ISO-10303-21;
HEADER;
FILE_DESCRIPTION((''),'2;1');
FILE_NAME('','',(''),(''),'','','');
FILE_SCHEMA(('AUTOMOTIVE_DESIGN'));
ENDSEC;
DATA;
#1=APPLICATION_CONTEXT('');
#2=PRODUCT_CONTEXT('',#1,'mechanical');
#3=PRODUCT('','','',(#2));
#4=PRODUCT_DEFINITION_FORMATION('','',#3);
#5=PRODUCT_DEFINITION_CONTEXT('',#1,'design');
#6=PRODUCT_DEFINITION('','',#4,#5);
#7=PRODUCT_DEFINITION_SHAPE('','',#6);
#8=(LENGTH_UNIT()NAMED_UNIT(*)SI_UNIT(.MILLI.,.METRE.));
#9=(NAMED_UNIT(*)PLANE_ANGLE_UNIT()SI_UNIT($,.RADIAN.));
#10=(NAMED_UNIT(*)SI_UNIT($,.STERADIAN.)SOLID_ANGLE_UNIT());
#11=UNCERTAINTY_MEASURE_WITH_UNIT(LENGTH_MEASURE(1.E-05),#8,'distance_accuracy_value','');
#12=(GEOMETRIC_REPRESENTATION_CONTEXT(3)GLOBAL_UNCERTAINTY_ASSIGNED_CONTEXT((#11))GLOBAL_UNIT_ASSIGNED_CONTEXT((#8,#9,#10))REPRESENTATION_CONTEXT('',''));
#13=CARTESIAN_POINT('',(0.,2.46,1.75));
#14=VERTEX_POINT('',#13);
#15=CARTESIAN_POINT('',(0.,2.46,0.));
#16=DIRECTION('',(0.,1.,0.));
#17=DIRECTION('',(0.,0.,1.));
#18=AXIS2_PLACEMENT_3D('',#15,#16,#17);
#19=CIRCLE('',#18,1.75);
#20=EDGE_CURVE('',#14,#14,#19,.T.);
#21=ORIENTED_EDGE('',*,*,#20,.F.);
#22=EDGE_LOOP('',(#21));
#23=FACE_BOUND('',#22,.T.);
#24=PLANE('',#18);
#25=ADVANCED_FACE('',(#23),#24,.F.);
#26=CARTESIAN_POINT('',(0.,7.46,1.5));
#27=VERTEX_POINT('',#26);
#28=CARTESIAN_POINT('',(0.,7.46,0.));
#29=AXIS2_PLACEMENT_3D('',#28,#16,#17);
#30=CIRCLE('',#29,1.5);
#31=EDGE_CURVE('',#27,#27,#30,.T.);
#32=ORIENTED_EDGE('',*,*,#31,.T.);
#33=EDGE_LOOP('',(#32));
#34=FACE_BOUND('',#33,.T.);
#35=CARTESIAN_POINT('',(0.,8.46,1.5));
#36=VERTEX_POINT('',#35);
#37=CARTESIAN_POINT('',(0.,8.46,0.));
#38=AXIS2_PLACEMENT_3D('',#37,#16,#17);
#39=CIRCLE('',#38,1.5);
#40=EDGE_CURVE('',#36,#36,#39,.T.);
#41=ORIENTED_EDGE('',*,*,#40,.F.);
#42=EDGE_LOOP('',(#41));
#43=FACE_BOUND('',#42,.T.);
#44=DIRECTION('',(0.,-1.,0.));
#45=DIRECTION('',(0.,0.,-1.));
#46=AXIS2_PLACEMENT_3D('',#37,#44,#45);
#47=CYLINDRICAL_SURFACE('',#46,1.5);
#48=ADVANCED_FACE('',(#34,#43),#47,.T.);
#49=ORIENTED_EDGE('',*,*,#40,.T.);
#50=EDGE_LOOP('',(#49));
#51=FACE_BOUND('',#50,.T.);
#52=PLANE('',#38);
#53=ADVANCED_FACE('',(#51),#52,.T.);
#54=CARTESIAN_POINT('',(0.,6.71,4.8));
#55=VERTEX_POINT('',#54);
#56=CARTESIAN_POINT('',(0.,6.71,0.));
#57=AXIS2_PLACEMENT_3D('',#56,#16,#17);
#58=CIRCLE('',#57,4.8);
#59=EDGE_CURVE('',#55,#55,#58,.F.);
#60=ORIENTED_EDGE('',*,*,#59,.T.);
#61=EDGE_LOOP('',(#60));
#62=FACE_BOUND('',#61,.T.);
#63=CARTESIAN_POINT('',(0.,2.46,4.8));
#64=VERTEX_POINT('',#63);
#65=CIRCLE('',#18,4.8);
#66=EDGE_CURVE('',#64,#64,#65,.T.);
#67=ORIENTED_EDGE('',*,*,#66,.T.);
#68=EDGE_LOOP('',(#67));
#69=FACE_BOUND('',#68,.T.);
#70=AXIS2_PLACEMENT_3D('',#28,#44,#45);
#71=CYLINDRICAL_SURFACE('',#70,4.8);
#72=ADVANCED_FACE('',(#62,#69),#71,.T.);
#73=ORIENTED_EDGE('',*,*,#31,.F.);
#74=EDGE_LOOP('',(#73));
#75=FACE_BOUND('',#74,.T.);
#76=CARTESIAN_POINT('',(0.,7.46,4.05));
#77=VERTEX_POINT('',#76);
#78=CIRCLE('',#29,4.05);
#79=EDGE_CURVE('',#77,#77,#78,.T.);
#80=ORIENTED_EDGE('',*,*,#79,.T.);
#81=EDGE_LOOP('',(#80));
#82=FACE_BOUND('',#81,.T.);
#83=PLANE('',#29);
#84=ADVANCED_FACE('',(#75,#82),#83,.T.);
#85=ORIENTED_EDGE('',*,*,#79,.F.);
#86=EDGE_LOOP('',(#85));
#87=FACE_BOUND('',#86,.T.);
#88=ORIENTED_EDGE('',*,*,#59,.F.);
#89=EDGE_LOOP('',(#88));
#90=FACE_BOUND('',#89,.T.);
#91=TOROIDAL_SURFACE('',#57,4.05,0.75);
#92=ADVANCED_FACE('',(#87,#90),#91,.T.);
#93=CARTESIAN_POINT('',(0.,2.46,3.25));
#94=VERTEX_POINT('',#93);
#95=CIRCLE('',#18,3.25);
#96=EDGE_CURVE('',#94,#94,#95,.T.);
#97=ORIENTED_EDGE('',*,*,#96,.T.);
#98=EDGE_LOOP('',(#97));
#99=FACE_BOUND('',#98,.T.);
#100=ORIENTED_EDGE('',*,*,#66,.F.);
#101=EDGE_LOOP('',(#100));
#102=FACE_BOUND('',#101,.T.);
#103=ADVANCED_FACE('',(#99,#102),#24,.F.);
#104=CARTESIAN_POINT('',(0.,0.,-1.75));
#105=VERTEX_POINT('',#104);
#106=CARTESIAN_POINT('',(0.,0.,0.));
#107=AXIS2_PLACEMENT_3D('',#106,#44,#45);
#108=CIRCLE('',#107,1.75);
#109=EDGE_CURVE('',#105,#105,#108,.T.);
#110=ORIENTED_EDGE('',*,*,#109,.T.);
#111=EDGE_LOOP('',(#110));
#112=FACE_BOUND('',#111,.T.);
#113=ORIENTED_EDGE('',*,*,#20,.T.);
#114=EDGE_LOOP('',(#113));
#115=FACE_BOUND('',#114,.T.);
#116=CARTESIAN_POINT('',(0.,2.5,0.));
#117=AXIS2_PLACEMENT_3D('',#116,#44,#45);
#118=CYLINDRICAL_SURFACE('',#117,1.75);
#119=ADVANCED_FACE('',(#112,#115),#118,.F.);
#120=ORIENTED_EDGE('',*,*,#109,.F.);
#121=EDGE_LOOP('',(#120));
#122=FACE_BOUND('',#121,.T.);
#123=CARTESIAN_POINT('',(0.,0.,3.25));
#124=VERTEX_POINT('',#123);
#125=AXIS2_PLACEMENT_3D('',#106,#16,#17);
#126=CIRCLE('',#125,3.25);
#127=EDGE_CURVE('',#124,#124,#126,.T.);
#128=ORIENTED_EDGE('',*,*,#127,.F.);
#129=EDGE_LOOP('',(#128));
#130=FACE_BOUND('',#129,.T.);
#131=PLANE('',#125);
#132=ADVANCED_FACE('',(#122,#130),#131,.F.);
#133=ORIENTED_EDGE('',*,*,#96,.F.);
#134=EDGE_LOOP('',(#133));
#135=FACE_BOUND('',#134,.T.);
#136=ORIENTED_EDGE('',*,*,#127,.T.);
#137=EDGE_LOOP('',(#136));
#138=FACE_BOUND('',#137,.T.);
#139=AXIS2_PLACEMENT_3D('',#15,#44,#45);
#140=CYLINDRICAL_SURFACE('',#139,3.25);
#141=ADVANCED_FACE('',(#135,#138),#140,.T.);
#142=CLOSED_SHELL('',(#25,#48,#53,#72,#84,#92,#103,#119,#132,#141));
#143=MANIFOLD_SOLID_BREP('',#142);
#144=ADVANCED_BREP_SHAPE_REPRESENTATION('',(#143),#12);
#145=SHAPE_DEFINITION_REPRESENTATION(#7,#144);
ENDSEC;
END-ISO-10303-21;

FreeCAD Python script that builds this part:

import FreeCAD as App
import Part
import Sketcher

V = App.Vector
Q = App.Units.Quantity


def edges_at(feature, points):
    """Names of the edges that pass closest to the given points."""
    edges = feature.Shape.Edges
    near = lambda p: min(range(len(edges)), key=lambda i: edges[i].distToShape(Part.Vertex(*p))[0])
    return sorted({f"Edge{near(p) + 1}" for p in points})

doc = App.newDocument("Part")
params = doc.addObject("Spreadsheet::Sheet", "Params")
for row, (alias, value) in enumerate([
    ("sketch1_diameter", "6.5 mm"),
    ("pad1_length", "2.46 mm"),
    ("sketch2_diameter", "3.5 mm"),
    ("pocket1_length", "2.5 mm"),
    ("sketch3_diameter", "9.6 mm"),
    ("pad2_length", "5 mm"),
    ("fillet_radius", "0.75 mm"),
    ("sketch4_diameter", "3 mm"),
    ("pad3_length", "1 mm"),
], start=1):
    params.set(f"A{row}", alias)
    params.set(f"B{row}", "=" + value)
    params.setAlias(f"B{row}", alias)

body = doc.addObject("PartDesign::Body", "Body")

sketch1 = body.newObject("Sketcher::SketchObject", "Sketch")
sketch1.AttachmentSupport = (doc.getObject("XZ_Plane"), [""])
sketch1.MapMode = "FlatFace"
sketch1.addGeometry(Part.Circle(V(0, 0, 0), V(0, 0, 1), 3.25), False)
sketch1.addConstraint(Sketcher.Constraint("Coincident", 0, 3, -1, 1))
sketch1.addConstraint(Sketcher.Constraint("Diameter", 0, Q("6.5 mm")))
sketch1.setExpression("Constraints[1]", "Params.sketch1_diameter")
pad1 = body.newObject("PartDesign::Pad", "Pad")
pad1.Profile = sketch1
pad1.setExpression("Length", "Params.pad1_length")
pad1.Reversed = True

sketch2 = body.newObject("Sketcher::SketchObject", "Sketch001")
sketch2.AttachmentSupport = (doc.getObject("XZ_Plane"), [""])
sketch2.MapMode = "FlatFace"
sketch2.addGeometry(Part.Circle(V(0, 0, 0), V(0, 0, 1), 1.75), False)
sketch2.addConstraint(Sketcher.Constraint("Coincident", 0, 3, -1, 1))
sketch2.addConstraint(Sketcher.Constraint("Diameter", 0, Q("3.5 mm")))
sketch2.setExpression("Constraints[1]", "Params.sketch2_diameter")
pocket1 = body.newObject("PartDesign::Pocket", "Pocket")
pocket1.Profile = sketch2
pocket1.setExpression("Length", "Params.pocket1_length")

sketch3 = body.newObject("Sketcher::SketchObject", "Sketch002")
sketch3.AttachmentSupport = (doc.getObject("XZ_Plane"), [""])
sketch3.MapMode = "FlatFace"
sketch3.AttachmentOffset = App.Placement(V(0, 0, -2.46), App.Rotation())
sketch3.addGeometry(Part.Circle(V(0, 0, 0), V(0, 0, 1), 4.8), False)
sketch3.addConstraint(Sketcher.Constraint("Coincident", 0, 3, -1, 1))
sketch3.addConstraint(Sketcher.Constraint("Diameter", 0, Q("9.6 mm")))
sketch3.setExpression("Constraints[1]", "Params.sketch3_diameter")
pad2 = body.newObject("PartDesign::Pad", "Pad001")
pad2.Profile = sketch3
pad2.setExpression("Length", "Params.pad2_length")
pad2.Reversed = True
doc.recompute()

fillet = body.newObject("PartDesign::Fillet", "Fillet")
fillet.Base = (pad2, edges_at(pad2, [(-4.8, 7.46, 0)]))
fillet.setExpression("Radius", "Params.fillet_radius")

sketch4 = body.newObject("Sketcher::SketchObject", "Sketch003")
sketch4.AttachmentSupport = (doc.getObject("XZ_Plane"), [""])
sketch4.MapMode = "FlatFace"
sketch4.AttachmentOffset = App.Placement(V(0, 0, -7.46), App.Rotation())
sketch4.addGeometry(Part.Circle(V(0, 0, 0), V(0, 0, 1), 1.5), False)
sketch4.addConstraint(Sketcher.Constraint("Coincident", 0, 3, -1, 1))
sketch4.addConstraint(Sketcher.Constraint("Diameter", 0, Q("3 mm")))
sketch4.setExpression("Constraints[1]", "Params.sketch4_diameter")
pad3 = body.newObject("PartDesign::Pad", "Pad002")
pad3.Profile = sketch4
pad3.setExpression("Length", "Params.pad3_length")
pad3.Reversed = True

doc.recompute()
